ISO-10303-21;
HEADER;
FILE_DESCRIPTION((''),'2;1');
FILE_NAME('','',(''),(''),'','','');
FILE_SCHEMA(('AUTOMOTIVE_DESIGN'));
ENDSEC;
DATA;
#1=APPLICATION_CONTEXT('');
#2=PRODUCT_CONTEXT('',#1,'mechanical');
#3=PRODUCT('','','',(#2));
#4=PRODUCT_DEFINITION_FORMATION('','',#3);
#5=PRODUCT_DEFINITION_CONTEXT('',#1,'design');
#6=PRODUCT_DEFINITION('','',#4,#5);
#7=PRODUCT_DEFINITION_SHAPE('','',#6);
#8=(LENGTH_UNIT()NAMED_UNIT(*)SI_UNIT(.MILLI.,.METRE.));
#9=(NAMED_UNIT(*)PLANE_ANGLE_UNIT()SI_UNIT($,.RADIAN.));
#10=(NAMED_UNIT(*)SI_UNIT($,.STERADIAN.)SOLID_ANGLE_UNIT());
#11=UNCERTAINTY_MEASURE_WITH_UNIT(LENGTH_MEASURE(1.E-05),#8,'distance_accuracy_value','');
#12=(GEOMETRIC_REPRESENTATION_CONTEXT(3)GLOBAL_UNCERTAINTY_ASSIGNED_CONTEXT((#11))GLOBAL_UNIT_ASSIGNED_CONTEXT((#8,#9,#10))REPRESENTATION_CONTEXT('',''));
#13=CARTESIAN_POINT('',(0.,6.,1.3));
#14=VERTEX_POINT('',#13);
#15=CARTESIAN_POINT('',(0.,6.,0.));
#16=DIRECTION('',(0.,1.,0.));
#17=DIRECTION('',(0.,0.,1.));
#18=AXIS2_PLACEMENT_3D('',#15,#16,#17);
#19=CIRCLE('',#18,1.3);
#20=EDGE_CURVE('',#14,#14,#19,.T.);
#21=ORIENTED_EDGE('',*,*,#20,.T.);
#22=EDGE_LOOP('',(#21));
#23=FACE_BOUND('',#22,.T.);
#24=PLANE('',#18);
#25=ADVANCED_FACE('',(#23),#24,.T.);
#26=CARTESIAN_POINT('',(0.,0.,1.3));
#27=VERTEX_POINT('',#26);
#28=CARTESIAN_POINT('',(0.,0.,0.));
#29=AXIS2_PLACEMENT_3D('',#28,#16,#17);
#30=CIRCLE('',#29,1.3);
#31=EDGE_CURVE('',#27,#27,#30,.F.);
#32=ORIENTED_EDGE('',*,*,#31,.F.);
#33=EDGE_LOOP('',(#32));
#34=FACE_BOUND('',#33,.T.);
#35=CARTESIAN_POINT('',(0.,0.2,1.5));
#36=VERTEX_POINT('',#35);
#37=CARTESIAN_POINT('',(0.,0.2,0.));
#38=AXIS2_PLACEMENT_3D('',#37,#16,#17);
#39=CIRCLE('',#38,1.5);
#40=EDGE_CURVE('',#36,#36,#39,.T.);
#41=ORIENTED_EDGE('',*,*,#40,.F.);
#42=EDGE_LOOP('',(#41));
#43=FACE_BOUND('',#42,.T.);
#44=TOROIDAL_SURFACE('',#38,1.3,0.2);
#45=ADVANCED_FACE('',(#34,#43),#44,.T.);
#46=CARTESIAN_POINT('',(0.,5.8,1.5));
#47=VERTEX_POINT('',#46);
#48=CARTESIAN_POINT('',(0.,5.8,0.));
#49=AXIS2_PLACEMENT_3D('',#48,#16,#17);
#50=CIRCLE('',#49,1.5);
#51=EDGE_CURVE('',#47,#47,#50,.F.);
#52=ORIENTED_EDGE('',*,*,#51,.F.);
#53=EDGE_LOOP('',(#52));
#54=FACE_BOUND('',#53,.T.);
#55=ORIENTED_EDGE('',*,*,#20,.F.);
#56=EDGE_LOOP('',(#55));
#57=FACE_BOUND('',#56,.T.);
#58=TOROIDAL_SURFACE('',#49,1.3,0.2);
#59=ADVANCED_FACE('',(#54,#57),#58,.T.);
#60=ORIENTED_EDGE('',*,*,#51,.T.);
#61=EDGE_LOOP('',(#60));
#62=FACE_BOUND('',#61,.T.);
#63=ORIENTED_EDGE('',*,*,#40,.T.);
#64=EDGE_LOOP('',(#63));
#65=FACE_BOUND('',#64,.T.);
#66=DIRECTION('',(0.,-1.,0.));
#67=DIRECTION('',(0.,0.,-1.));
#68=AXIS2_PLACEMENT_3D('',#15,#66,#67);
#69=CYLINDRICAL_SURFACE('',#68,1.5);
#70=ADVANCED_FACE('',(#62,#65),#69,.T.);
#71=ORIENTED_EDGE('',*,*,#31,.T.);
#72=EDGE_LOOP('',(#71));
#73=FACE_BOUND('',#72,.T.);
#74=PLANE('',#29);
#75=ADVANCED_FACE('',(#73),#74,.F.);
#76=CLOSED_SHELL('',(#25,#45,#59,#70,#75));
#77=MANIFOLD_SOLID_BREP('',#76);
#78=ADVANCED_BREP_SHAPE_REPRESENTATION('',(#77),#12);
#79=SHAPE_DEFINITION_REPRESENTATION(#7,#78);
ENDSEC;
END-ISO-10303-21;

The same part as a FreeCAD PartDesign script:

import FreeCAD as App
import Part
import Sketcher

V = App.Vector


def edges_at(feature, points):
    """Names of the edges that pass closest to the given points."""
    edges = feature.Shape.Edges
    near = lambda p: min(range(len(edges)), key=lambda i: edges[i].distToShape(Part.Vertex(*p))[0])
    return sorted({f"Edge{near(p) + 1}" for p in points})

doc = App.newDocument("Part")
params = doc.addObject("Spreadsheet::Sheet", "Params")
for row, (alias, value) in enumerate([
    ("sketch1_diameter", "3 mm"),
    ("pad1_length", "6 mm"),
    ("fillet_radius", "0.2 mm"),
], start=1):
    params.set(f"A{row}", alias)
    params.set(f"B{row}", "=" + value)
    params.setAlias(f"B{row}", alias)

body = doc.addObject("PartDesign::Body", "Body")

sketch1 = doc.addObject("Sketcher::SketchObject", "Sketch")
body.addObject(sketch1)
sketch1.AttachmentSupport = (doc.XZ_Plane, [""])
sketch1.MapMode = "FlatFace"
sketch1.addGeometry(Part.Circle(V(0, 0, 0), V(0, 0, 1), 1.5), False)
sketch1.addConstraint(Sketcher.Constraint("Coincident", 0, 3, -1, 1))
sketch1.addConstraint(Sketcher.Constraint("Diameter", 0, 3.0))
sketch1.setExpression("Constraints[1]", "Params.sketch1_diameter")
pad1 = doc.addObject("PartDesign::Pad", "Pad")
body.addObject(pad1)
pad1.Profile = sketch1
pad1.setExpression("Length", "Params.pad1_length")
pad1.Reversed = True
doc.recompute()

fillet = doc.addObject("PartDesign::Fillet", "Fillet")
body.addObject(fillet)
fillet.Base = (pad1, edges_at(pad1, [(-1.5, 0, 0), (-1.5, 6, 0)]))
fillet.setExpression("Radius", "Params.fillet_radius")

doc.recompute()
